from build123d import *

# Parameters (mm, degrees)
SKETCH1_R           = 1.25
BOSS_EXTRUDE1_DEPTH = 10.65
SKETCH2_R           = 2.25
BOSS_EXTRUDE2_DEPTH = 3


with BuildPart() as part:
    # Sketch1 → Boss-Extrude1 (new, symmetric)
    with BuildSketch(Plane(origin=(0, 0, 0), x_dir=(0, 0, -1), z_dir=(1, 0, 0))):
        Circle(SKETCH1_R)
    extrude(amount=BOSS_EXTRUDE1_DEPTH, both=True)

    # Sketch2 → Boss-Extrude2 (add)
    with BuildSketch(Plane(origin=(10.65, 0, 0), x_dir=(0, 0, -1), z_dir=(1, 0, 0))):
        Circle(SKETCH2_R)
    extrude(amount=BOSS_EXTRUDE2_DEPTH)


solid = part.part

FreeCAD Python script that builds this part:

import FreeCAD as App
import Part
import Sketcher
from FreeCAD import Vector
Q = App.Units.Quantity

doc = App.newDocument("Part")
body = doc.addObject("PartDesign::Body", "Body")

# Sketch on YZ plane
sketch1 = doc.addObject("Sketcher::SketchObject", "Sketch")
body.addObject(sketch1)
sketch1.AttachmentSupport = (doc.YZ_Plane, [""])
sketch1.MapMode = "FlatFace"
sketch1.addGeometry(Part.Circle(Vector(0, 0, 0), Vector(0, 0, 1), 1.2), False)
sketch1.addConstraint([
    Sketcher.Constraint("Coincident", 0, 3, -1, 1),
    Sketcher.Constraint("Diameter", 0, Q("2.5 mm")),
])
pad1 = doc.addObject("PartDesign::Pad", "Pad")
body.addObject(pad1)
pad1.Profile = sketch1
pad1.Length = 21.3
pad1.Midplane = True

# Sketch on YZ plane
sketch2 = doc.addObject("Sketcher::SketchObject", "Sketch001")
body.addObject(sketch2)
sketch2.AttachmentSupport = (doc.YZ_Plane, [""])
sketch2.MapMode = "FlatFace"
sketch2.AttachmentOffset = App.Placement(Vector(0, 0, 10.65), App.Rotation())
sketch2.addGeometry(Part.Circle(Vector(0, 0, 0), Vector(0, 0, 1), 2.2), False)
sketch2.addConstraint([
    Sketcher.Constraint("Coincident", 0, 3, -1, 1),
    Sketcher.Constraint("Diameter", 0, Q("4.5 mm")),
])
pad2 = doc.addObject("PartDesign::Pad", "Pad001")
body.addObject(pad2)
pad2.Profile = sketch2
pad2.Length = 3

doc.recompute()
